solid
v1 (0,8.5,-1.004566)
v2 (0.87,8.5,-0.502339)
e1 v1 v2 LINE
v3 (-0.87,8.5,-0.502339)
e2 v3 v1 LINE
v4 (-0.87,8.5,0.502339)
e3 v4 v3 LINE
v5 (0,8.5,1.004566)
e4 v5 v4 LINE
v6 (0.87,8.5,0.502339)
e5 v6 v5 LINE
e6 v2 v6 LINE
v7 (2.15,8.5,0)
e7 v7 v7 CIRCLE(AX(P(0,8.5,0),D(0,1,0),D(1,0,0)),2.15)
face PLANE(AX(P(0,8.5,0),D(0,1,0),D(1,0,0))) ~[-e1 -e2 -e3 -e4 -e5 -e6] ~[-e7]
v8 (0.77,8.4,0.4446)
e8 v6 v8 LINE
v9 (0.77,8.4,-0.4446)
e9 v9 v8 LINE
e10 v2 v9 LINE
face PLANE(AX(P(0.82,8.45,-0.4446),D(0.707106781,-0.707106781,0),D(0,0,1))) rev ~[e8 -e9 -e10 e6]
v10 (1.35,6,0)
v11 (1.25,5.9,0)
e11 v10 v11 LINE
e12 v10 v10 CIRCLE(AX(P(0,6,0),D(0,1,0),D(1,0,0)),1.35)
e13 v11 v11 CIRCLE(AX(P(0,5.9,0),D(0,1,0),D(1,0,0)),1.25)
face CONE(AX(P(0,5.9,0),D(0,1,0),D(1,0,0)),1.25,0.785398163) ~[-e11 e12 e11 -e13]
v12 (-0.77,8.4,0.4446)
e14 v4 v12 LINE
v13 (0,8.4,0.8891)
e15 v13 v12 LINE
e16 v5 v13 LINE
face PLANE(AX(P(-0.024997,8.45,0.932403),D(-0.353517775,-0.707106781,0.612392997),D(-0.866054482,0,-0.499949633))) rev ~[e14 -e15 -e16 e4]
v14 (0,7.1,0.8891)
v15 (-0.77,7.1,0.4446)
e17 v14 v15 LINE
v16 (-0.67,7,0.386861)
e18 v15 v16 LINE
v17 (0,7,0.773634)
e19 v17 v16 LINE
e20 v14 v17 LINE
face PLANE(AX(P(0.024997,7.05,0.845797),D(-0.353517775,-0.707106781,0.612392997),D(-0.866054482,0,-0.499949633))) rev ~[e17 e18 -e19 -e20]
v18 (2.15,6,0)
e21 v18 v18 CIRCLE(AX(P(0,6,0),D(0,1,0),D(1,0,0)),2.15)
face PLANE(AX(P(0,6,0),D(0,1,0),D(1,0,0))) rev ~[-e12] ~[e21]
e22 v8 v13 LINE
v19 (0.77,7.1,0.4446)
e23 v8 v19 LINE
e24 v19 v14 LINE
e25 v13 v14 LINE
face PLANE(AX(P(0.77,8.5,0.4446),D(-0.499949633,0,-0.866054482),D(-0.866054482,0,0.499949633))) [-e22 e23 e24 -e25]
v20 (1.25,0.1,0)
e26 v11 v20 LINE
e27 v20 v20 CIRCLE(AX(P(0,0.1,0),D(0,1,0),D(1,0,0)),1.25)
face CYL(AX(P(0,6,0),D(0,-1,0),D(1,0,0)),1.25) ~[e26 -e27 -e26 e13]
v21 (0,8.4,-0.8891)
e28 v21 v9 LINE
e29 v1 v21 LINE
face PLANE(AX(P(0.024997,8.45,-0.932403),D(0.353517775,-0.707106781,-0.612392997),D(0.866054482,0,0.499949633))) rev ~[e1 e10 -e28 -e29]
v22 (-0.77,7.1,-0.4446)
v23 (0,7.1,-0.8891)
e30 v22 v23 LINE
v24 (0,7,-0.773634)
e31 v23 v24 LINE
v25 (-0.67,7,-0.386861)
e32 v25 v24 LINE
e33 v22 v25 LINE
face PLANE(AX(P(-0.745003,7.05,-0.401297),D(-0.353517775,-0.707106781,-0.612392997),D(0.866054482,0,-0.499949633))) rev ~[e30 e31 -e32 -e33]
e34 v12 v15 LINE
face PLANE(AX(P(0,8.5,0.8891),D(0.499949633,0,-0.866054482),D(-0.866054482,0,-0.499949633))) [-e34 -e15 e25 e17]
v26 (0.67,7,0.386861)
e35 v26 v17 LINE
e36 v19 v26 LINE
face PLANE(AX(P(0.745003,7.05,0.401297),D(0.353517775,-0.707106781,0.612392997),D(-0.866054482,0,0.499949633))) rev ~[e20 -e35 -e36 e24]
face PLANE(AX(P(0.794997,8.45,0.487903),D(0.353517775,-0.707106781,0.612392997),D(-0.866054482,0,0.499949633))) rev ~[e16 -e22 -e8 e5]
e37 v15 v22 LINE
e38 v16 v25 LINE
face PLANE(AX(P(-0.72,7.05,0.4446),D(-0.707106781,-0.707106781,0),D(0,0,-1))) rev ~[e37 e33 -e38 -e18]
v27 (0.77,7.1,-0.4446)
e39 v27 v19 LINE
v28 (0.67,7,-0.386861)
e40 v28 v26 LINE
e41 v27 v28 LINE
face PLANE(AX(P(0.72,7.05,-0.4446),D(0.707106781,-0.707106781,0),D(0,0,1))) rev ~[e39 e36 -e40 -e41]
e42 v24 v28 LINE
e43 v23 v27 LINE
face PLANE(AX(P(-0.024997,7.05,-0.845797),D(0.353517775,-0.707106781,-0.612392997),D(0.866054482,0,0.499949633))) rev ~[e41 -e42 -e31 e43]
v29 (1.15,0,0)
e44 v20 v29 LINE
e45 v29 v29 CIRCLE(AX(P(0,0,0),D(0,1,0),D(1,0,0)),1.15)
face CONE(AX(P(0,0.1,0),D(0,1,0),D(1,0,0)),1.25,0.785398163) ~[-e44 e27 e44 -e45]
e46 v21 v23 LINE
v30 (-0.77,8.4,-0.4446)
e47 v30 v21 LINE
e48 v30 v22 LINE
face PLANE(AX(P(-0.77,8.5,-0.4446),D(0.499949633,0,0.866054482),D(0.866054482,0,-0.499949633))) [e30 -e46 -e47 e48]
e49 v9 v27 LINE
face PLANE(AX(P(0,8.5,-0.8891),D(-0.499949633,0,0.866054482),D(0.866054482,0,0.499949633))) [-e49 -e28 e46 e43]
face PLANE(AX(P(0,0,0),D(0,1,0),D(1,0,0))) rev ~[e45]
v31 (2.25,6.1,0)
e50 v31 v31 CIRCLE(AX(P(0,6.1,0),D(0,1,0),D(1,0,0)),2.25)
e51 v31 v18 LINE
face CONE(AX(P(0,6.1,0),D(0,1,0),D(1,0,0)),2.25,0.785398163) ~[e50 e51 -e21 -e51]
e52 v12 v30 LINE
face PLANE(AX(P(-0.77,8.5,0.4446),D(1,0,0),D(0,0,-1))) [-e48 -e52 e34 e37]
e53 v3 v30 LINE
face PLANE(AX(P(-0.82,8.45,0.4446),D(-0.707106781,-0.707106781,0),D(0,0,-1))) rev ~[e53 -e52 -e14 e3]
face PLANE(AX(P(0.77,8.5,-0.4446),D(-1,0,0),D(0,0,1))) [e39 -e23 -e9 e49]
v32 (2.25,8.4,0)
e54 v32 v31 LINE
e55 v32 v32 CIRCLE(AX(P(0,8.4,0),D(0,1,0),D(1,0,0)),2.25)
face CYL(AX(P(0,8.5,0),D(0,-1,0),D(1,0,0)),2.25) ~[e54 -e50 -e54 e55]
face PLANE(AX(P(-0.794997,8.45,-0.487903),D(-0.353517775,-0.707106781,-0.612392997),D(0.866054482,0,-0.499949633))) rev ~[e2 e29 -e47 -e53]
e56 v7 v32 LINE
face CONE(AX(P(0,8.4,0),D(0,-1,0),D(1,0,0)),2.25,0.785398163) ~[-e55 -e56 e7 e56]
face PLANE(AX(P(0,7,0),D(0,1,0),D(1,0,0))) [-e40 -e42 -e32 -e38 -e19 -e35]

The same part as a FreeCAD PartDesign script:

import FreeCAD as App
import Part
import Sketcher

V = App.Vector
Q = App.Units.Quantity


def edges_at(feature, points):
    """Names of the edges that pass closest to the given points."""
    edges = feature.Shape.Edges
    near = lambda p: min(range(len(edges)), key=lambda i: edges[i].distToShape(Part.Vertex(*p))[0])
    return sorted({f"Edge{near(p) + 1}" for p in points})


def add_polygon(sketch, points):
    """Adds a closed chain of lines whose ends are joined by coincident constraints."""
    first, n = sketch.GeometryCount, len(points)
    for a, b in zip(points, points[1:] + points[:1]):
        sketch.addGeometry(Part.LineSegment(App.Vector(*a, 0), App.Vector(*b, 0)), False)
    for i in range(n):
        sketch.addConstraint(Sketcher.Constraint("Coincident", first + i, 2, first + (i + 1) % n, 1))

doc = App.newDocument("Part")
body = doc.addObject("PartDesign::Body", "Body")

sketch1 = body.newObject("Sketcher::SketchObject", "Sketch")
sketch1.AttachmentSupport = (doc.getObject("XY_Plane"), [""])
sketch1.MapMode = "FlatFace"
add_polygon(sketch1, [(2.2, 8.5), (0, 8.5), (0, 0), (1.2, 0), (1.2, 6), (2.2, 6)])
sketch1.addConstraint(Sketcher.Constraint("Horizontal", 0))
sketch1.addConstraint(Sketcher.Constraint("Vertical", 1))
sketch1.addConstraint(Sketcher.Constraint("Horizontal", 2))
sketch1.addConstraint(Sketcher.Constraint("Vertical", 3))
sketch1.addConstraint(Sketcher.Constraint("Horizontal", 4))
sketch1.addConstraint(Sketcher.Constraint("Vertical", 5))
sketch1.addConstraint(Sketcher.Constraint("Coincident", 1, 2, -1, 1))
sketch1.addConstraint(Sketcher.Constraint("DistanceY", 3, 1, 3, 2, Q("6 mm")))
sketch1.addConstraint(Sketcher.Constraint("DistanceY", 5, 1, 5, 2, Q("2.5 mm")))
sketch1.addConstraint(Sketcher.Constraint("DistanceX", 0, 2, 0, 1, Q("2.25 mm")))
sketch1.addConstraint(Sketcher.Constraint("DistanceX", 2, 1, 2, 2, Q("1.25 mm")))
revolution = body.newObject("PartDesign::Revolution", "Revolution")
revolution.Profile = sketch1
revolution.ReferenceAxis = (sketch1, ["V_Axis"])
revolution.Angle = 360

sketch2 = body.newObject("Sketcher::SketchObject", "Sketch001")
sketch2.AttachmentSupport = (doc.getObject("XZ_Plane"), [""])
sketch2.MapMode = "FlatFace"
sketch2.AttachmentOffset = App.Placement(V(0, 0, -8.5), App.Rotation())
add_polygon(sketch2, [(0, 0.9), (0.8, 0.4), (0.8, -0.4), (0, -0.9), (-0.8, -0.4), (-0.8, 0.4)])
sketch2.addConstraint(Sketcher.Constraint("Vertical", 1))
sketch2.addConstraint(Sketcher.Constraint("Vertical", 4))
sketch2.addConstraint(Sketcher.Constraint("Symmetric", 0, 2, 3, 2, -1, 1))
sketch2.addConstraint(Sketcher.Constraint("Symmetric", 2, 2, 5, 2, -1, 1))
sketch2.addConstraint(Sketcher.Constraint("PointOnObject", 2, 2, -2))
sketch2.addConstraint(Sketcher.Constraint("Parallel", 2, 5))
sketch2.addConstraint(Sketcher.Constraint("Horizontal", 1, 2, 3, 2))
sketch2.addConstraint(Sketcher.Constraint("DistanceX", 3, 2, 1, 2, Q("1.54 mm")))
sketch2.addConstraint(Sketcher.Constraint("Distance", 0, Q("0.889 mm")))
sketch2.addConstraint(Sketcher.Constraint("DistanceY", 1, 2, 1, 1, Q("0.8892 mm")))
pocket1 = body.newObject("PartDesign::Pocket", "Pocket")
pocket1.Profile = sketch2
pocket1.Length = 1.5
pocket1.Reversed = True
doc.recompute()

chamfer = body.newObject("PartDesign::Chamfer", "Chamfer")
chamfer.Base = (pocket1, edges_at(pocket1, [
    (0.385, 8.5, 0.667),
    (0.77, 8.5, 0),
    (0.77, 7, 0),
    (0.385, 8.5, -0.667),
    (0.385, 7, -0.667),
    (-0.385, 8.5, -0.667),
    (-0.385, 7, -0.667),
    (-0.77, 7, 0),
    (-0.77, 8.5, 0),
    (-0.385, 7, 0.667),
    (-0.385, 8.5, 0.667),
    (0.385, 7, 0.667),
    (-2.25, 8.5, 0),
    (-2.25, 6, 0),
    (-1.25, 6, 0),
    (-1.25, 0, 0),
]))
chamfer.Size = 0.1

doc.recompute()
